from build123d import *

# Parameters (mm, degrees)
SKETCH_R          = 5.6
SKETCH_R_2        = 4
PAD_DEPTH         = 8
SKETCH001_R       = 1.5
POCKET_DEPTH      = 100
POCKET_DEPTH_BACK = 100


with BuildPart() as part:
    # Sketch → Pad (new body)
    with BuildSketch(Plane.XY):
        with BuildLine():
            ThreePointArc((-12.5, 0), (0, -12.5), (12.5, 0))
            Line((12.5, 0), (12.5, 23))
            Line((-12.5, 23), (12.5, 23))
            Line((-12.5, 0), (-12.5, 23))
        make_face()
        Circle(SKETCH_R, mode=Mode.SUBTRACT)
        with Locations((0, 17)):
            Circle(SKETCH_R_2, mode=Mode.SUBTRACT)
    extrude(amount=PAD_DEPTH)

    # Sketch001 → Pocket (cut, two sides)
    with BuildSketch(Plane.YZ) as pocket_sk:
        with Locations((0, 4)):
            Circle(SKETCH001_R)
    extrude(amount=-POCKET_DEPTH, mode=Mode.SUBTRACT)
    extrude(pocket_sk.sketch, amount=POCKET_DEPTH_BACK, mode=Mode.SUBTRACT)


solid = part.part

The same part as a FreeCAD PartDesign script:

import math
import FreeCAD as App
import Part
import Sketcher

V = App.Vector

doc = App.newDocument("Part")
body = doc.addObject("PartDesign::Body", "Body")

# Sketch on XY plane
sketch1 = body.newObject("Sketcher::SketchObject", "Sketch")
sketch1.AttachmentSupport = (doc.getObject("XY_Plane"), [""])
sketch1.MapMode = "FlatFace"
sketch1.addGeometry([
    Part.ArcOfCircle(Part.Circle(V(0, 0, 0), V(0, 0, 1), 12.5), math.radians(180), math.radians(360)),  # 0
    Part.LineSegment(V(12.5, 0, 0), V(12.5, 23, 0)),  # 1
    Part.LineSegment(V(12.5, 23, 0), V(-12.5, 23, 0)),  # 2
    Part.LineSegment(V(-12.5, 23, 0), V(-12.5, 0, 0)),  # 3
    Part.Circle(V(0, 0, 0), V(0, 0, 1), 5.6),  # 4
    Part.Circle(V(0, 17, 0), V(0, 0, 1), 4),  # 5
], False)
sketch1.addConstraint([
    Sketcher.Constraint("Tangent", 0, 2, 1, 1),
    Sketcher.Constraint("Coincident", 1, 2, 2, 1),
    Sketcher.Constraint("Coincident", 2, 2, 3, 1),
    Sketcher.Constraint("Tangent", 3, 2, 0, 1),
    Sketcher.Constraint("Vertical", 1),
    Sketcher.Constraint("Horizontal", 2),
    Sketcher.Constraint("Vertical", 3),
    Sketcher.Constraint("Coincident", 0, 3, -1, 1),
    Sketcher.Constraint("Coincident", 4, 3, -1, 1),
    Sketcher.Constraint("PointOnObject", 5, 3, -2),
    Sketcher.Constraint("Diameter", 5, 8.0),
    Sketcher.Constraint("Diameter", 4, 11.2),
    Sketcher.Constraint("Radius", 0, 12.5),
    Sketcher.Constraint("DistanceY", 1, 1, 1, 2, 23.0),
    Sketcher.Constraint("DistanceY", -1, 1, 5, 3, 17.0),
])
pad1 = body.newObject("PartDesign::Pad", "Pad")
pad1.Profile = sketch1
pad1.Length = 8

# Sketch on YZ plane
sketch2 = body.newObject("Sketcher::SketchObject", "Sketch001")
sketch2.AttachmentSupport = (doc.getObject("YZ_Plane"), [""])
sketch2.MapMode = "FlatFace"
sketch2.addGeometry(Part.Circle(V(0, 4, 0), V(0, 0, 1), 1.5), False)
sketch2.addConstraint([
    Sketcher.Constraint("PointOnObject", 0, 3, -2),
    Sketcher.Constraint("Diameter", 0, 3.0),
    Sketcher.Constraint("DistanceY", -1, 1, 0, 3, 4.0),
])
pocket1 = body.newObject("PartDesign::Pocket", "Pocket")
pocket1.Profile = sketch2
pocket1.Type = "ThroughAll"
pocket1.Midplane = True

doc.recompute()
